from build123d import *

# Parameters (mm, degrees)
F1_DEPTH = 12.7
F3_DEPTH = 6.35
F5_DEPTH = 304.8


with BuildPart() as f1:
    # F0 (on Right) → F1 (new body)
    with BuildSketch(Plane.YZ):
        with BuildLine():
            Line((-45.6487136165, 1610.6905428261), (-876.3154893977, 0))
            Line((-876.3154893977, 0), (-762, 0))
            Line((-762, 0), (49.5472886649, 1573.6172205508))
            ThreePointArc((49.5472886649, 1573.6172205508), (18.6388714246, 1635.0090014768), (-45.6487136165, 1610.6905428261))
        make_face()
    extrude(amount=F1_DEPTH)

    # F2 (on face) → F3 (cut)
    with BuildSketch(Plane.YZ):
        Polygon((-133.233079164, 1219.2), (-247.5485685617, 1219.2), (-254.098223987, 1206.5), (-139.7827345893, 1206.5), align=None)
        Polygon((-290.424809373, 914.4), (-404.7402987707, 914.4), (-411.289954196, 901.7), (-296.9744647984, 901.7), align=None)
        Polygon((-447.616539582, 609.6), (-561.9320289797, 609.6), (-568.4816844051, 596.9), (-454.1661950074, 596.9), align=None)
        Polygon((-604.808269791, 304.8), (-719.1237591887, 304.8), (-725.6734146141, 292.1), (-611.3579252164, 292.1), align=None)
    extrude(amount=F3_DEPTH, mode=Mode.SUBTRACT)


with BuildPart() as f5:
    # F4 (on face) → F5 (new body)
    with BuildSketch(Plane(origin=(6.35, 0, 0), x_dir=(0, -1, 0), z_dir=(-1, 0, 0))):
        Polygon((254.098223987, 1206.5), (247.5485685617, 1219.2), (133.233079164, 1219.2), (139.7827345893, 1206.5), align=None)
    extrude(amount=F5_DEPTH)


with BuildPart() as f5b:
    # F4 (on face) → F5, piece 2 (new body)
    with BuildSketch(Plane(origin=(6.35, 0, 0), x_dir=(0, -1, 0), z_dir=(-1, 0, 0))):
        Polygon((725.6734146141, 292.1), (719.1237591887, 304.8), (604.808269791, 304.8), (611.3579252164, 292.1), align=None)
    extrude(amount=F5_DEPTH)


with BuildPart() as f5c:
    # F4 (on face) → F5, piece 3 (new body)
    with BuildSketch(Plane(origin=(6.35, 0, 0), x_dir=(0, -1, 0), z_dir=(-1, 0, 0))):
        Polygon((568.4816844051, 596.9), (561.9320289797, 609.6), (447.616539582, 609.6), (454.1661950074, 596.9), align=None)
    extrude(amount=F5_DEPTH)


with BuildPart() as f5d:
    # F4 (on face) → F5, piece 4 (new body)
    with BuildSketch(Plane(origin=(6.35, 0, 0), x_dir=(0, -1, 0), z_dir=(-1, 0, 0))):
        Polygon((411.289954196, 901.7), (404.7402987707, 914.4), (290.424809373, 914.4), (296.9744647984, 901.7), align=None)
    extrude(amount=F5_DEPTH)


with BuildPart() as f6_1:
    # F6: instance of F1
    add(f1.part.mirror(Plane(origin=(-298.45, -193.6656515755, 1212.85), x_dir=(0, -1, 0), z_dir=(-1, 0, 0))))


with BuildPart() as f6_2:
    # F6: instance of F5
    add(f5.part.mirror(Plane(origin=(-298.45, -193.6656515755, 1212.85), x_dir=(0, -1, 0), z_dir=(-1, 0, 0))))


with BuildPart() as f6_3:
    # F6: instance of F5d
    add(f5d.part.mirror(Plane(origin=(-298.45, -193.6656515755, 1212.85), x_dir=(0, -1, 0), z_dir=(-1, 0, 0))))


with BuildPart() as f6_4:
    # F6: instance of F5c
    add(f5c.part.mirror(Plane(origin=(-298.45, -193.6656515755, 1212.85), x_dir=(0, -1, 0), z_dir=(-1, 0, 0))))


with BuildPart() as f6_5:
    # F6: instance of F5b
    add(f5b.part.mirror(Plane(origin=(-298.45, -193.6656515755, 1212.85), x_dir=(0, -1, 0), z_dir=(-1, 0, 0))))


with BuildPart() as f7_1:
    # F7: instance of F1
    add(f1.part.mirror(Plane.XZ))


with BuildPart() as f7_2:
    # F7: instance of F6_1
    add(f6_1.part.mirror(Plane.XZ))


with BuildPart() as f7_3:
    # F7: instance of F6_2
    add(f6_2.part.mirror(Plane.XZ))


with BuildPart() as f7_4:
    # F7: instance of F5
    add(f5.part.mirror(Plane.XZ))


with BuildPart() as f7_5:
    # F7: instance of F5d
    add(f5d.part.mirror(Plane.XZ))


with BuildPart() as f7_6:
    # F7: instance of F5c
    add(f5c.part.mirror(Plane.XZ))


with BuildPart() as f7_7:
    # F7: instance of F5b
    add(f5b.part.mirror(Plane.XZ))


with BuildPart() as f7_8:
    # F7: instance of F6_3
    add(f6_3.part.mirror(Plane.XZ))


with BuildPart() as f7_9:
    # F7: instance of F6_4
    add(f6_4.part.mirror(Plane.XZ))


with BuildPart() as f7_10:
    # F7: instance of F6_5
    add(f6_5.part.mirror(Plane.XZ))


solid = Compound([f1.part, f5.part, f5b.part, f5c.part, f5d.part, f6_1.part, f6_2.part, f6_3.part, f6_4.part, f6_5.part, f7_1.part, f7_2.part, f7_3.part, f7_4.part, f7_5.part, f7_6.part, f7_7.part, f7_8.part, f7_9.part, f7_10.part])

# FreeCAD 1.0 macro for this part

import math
import FreeCAD as App
import Part
import Sketcher
from FreeCAD import Vector
Q = App.Units.Quantity

doc = App.newDocument("Part")
params = doc.addObject("Spreadsheet::Sheet", "Params")
for row, (alias, value) in enumerate([
    ("pad1_length", "0.5 in"),
    ("pocket1_length", "0.25 in"),
    ("pad2_length", "12 in"),
    ("pad3_length", "12 in"),
    ("pad4_length", "12 in"),
    ("pad5_length", "12 in"),
], start=1):
    params.set(f"A{row}", alias)
    params.set(f"B{row}", "=" + value)
    params.setAlias(f"B{row}", alias)

body = doc.addObject("PartDesign::Body", "Body")

# Sketch on YZ plane
sketch1 = doc.addObject("Sketcher::SketchObject", "Sketch")
body.addObject(sketch1)
sketch1.AttachmentSupport = (doc.YZ_Plane, [""])
sketch1.MapMode = "FlatFace"
sketch1.addGeometry([
    Part.LineSegment(Vector(-46, 1611, 0), Vector(-876, 0, 0)),
    Part.LineSegment(Vector(-876, 0, 0), Vector(-762, 0, 0)),
    Part.LineSegment(Vector(-762, 0, 0), Vector(50, 1574, 0)),
    Part.ArcOfCircle(Part.Circle(Vector(0, 1587, 0), Vector(0, 0, 1), 51), math.radians(-15), math.radians(153)),
], False)
sketch1.addConstraint([
    Sketcher.Constraint("Coincident", 0, 2, 1, 1),
    Sketcher.Constraint("Coincident", 1, 2, 2, 1),
    Sketcher.Constraint("Coincident", 2, 2, 3, 1),
    Sketcher.Constraint("Tangent", 3, 2, 0, 1),
    Sketcher.Constraint("Horizontal", 1),
    Sketcher.Constraint("PointOnObject", 3, 3, -2),
    Sketcher.Constraint("PointOnObject", 0, 2, -1),
    Sketcher.Constraint("Parallel", 0, 2),
    Sketcher.Constraint("DistanceX", 1, 2, -1, 1, Q("30 in")),
    Sketcher.Constraint("Radius", 3, 51.361762),
    Sketcher.Constraint("DistanceX", 1, 1, 1, 2, 114.315489),
    Sketcher.Constraint("Distance", 0, 1812.272418),
])
pad1 = doc.addObject("PartDesign::Pad", "Pad")
body.addObject(pad1)
pad1.Profile = sketch1
pad1.setExpression("Length", "Params.pad1_length")

# Sketch on YZ plane
sketch2 = doc.addObject("Sketcher::SketchObject", "Sketch001")
body.addObject(sketch2)
sketch2.AttachmentSupport = (doc.YZ_Plane, [""])
sketch2.MapMode = "FlatFace"
sketch2.addGeometry([
    Part.LineSegment(Vector(-133, 1219, 0), Vector(-248, 1219, 0)),  # 0
    Part.LineSegment(Vector(-248, 1219, 0), Vector(-254, 1206, 0)),  # 1
    Part.LineSegment(Vector(-254, 1206, 0), Vector(-140, 1206, 0)),  # 2
    Part.LineSegment(Vector(-140, 1206, 0), Vector(-133, 1219, 0)),  # 3
    Part.LineSegment(Vector(-290, 914, 0), Vector(-405, 914, 0)),  # 4
    Part.LineSegment(Vector(-405, 914, 0), Vector(-411, 902, 0)),  # 5
    Part.LineSegment(Vector(-411, 902, 0), Vector(-297, 902, 0)),  # 6
    Part.LineSegment(Vector(-297, 902, 0), Vector(-290, 914, 0)),  # 7
    Part.LineSegment(Vector(-448, 610, 0), Vector(-562, 610, 0)),  # 8
    Part.LineSegment(Vector(-562, 610, 0), Vector(-568, 597, 0)),  # 9
    Part.LineSegment(Vector(-568, 597, 0), Vector(-454, 597, 0)),  # 10
    Part.LineSegment(Vector(-454, 597, 0), Vector(-448, 610, 0)),  # 11
    Part.LineSegment(Vector(-605, 305, 0), Vector(-719, 305, 0)),  # 12
    Part.LineSegment(Vector(-719, 305, 0), Vector(-726, 292, 0)),  # 13
    Part.LineSegment(Vector(-726, 292, 0), Vector(-611, 292, 0)),  # 14
    Part.LineSegment(Vector(-611, 292, 0), Vector(-605, 305, 0)),  # 15
], False)
sketch2.addConstraint([
    Sketcher.Constraint("Coincident", 0, 2, 1, 1),
    Sketcher.Constraint("Coincident", 1, 2, 2, 1),
    Sketcher.Constraint("Coincident", 2, 2, 3, 1),
    Sketcher.Constraint("Coincident", 3, 2, 0, 1),
    Sketcher.Constraint("Coincident", 4, 2, 5, 1),
    Sketcher.Constraint("Coincident", 5, 2, 6, 1),
    Sketcher.Constraint("Coincident", 6, 2, 7, 1),
    Sketcher.Constraint("Coincident", 7, 2, 4, 1),
    Sketcher.Constraint("Coincident", 8, 2, 9, 1),
    Sketcher.Constraint("Coincident", 9, 2, 10, 1),
    Sketcher.Constraint("Coincident", 10, 2, 11, 1),
    Sketcher.Constraint("Coincident", 11, 2, 8, 1),
    Sketcher.Constraint("Coincident", 12, 2, 13, 1),
    Sketcher.Constraint("Coincident", 13, 2, 14, 1),
    Sketcher.Constraint("Coincident", 14, 2, 15, 1),
    Sketcher.Constraint("Coincident", 15, 2, 12, 1),
    Sketcher.Constraint("Horizontal", 0),
    Sketcher.Constraint("Horizontal", 2),
    Sketcher.Constraint("Horizontal", 4),
    Sketcher.Constraint("Horizontal", 6),
    Sketcher.Constraint("Horizontal", 8),
    Sketcher.Constraint("Horizontal", 10),
    Sketcher.Constraint("Horizontal", 12),
    Sketcher.Constraint("Horizontal", 14),
    Sketcher.Constraint("Parallel", 1, 3),
    Sketcher.Constraint("Parallel", 3, 5),
    Sketcher.Constraint("Parallel", 5, 7),
    Sketcher.Constraint("Parallel", 7, 9),
    Sketcher.Constraint("Parallel", 9, 11),
    Sketcher.Constraint("Parallel", 11, 13),
    Sketcher.Constraint("Parallel", 13, 15),
    Sketcher.Constraint("Equal", 2, 4),
    Sketcher.Constraint("Equal", 6, 8),
    Sketcher.Constraint("Equal", 10, 12),
    Sketcher.Constraint("Equal", 3, 5),
    Sketcher.Constraint("Equal", 7, 9),
    Sketcher.Constraint("Equal", 11, 13),
    Sketcher.Constraint("DistanceY", -1, 1, 0, 2, Q("48 in")),
    Sketcher.Constraint("DistanceY", -1, 1, 4, 2, Q("36 in")),
    Sketcher.Constraint("DistanceY", -1, 1, 8, 2, Q("24 in")),
    Sketcher.Constraint("DistanceY", -1, 1, 12, 2, Q("12 in")),
    Sketcher.Constraint("DistanceY", -1, 1, 1, 2, Q("47.5 in")),
    Sketcher.Constraint("DistanceX", 4, 2, 2, 2, Q("10.4314002 in")),
    Sketcher.Constraint("DistanceX", 8, 2, 6, 2, Q("10.4314002 in")),
    Sketcher.Constraint("DistanceX", 12, 2, 10, 2, Q("10.4314002 in")),
    Sketcher.Constraint("DistanceX", 0, 2, 0, 1, 114.315489),
    Sketcher.Constraint("DistanceX", 4, 2, -1, 1, 404.740299),
    Sketcher.Constraint("DistanceX", 0, 2, -1, 1, 247.548569),
])
pocket1 = doc.addObject("PartDesign::Pocket", "Pocket")
body.addObject(pocket1)
pocket1.Profile = sketch2
pocket1.setExpression("Length", "Params.pocket1_length")
pocket1.Reversed = True
body2 = doc.addObject("PartDesign::Body", "Body001")

# Sketch on YZ plane
sketch3 = doc.addObject("Sketcher::SketchObject", "Sketch002")
body2.addObject(sketch3)
sketch3.AttachmentSupport = (doc.getObject("YZ_Plane001"), [""])
sketch3.MapMode = "FlatFace"
sketch3.AttachmentOffset = App.Placement(Vector(0, 0, 0.25 * 25.4), App.Rotation())
sketch3.addGeometry([
    Part.LineSegment(Vector(-254, 1206, 0), Vector(-248, 1219, 0)),
    Part.LineSegment(Vector(-248, 1219, 0), Vector(-133, 1219, 0)),
    Part.LineSegment(Vector(-133, 1219, 0), Vector(-140, 1206, 0)),
    Part.LineSegment(Vector(-140, 1206, 0), Vector(-254, 1206, 0)),
], False)
sketch3.addConstraint([
    Sketcher.Constraint("Coincident", 0, 2, 1, 1),
    Sketcher.Constraint("Coincident", 1, 2, 2, 1),
    Sketcher.Constraint("Coincident", 2, 2, 3, 1),
    Sketcher.Constraint("Coincident", 3, 2, 0, 1),
    Sketcher.Constraint("Horizontal", 1),
    Sketcher.Constraint("Horizontal", 3),
    Sketcher.Constraint("Parallel", 0, 2),
    Sketcher.Constraint("DistanceY", -1, 1, 0, 2, Q("48 in")),
    Sketcher.Constraint("DistanceY", -1, 1, 2, 2, Q("47.5 in")),
    Sketcher.Constraint("DistanceX", 1, 1, 1, 2, 114.315489),
    Sketcher.Constraint("DistanceX", 0, 2, -1, 1, 247.548569),
    Sketcher.Constraint("Distance", 0, 14.289436),
])
pad2 = doc.addObject("PartDesign::Pad", "Pad001")
body2.addObject(pad2)
pad2.Profile = sketch3
pad2.setExpression("Length", "Params.pad2_length")
pad2.Reversed = True
body3 = doc.addObject("PartDesign::Body", "Body002")

# Sketch on YZ plane
sketch4 = doc.addObject("Sketcher::SketchObject", "Sketch003")
body3.addObject(sketch4)
sketch4.AttachmentSupport = (doc.getObject("YZ_Plane002"), [""])
sketch4.MapMode = "FlatFace"
sketch4.AttachmentOffset = App.Placement(Vector(0, 0, 0.25 * 25.4), App.Rotation())
sketch4.addGeometry([
    Part.LineSegment(Vector(-726, 292, 0), Vector(-719, 305, 0)),
    Part.LineSegment(Vector(-719, 305, 0), Vector(-605, 305, 0)),
    Part.LineSegment(Vector(-605, 305, 0), Vector(-611, 292, 0)),
    Part.LineSegment(Vector(-611, 292, 0), Vector(-726, 292, 0)),
], False)
sketch4.addConstraint([
    Sketcher.Constraint("Coincident", 0, 2, 1, 1),
    Sketcher.Constraint("Coincident", 1, 2, 2, 1),
    Sketcher.Constraint("Coincident", 2, 2, 3, 1),
    Sketcher.Constraint("Coincident", 3, 2, 0, 1),
    Sketcher.Constraint("Horizontal", 1),
    Sketcher.Constraint("Horizontal", 3),
    Sketcher.Constraint("Parallel", 0, 2),
    Sketcher.Constraint("DistanceY", -1, 1, 0, 2, Q("12 in")),
    Sketcher.Constraint("DistanceY", -1, 1, 2, 2, Q("11.5 in")),
    Sketcher.Constraint("DistanceX", 1, 1, 1, 2, 114.315489),
    Sketcher.Constraint("DistanceX", 0, 2, -1, 1, 719.123759),
    Sketcher.Constraint("Distance", 0, 14.289436),
])
pad3 = doc.addObject("PartDesign::Pad", "Pad002")
body3.addObject(pad3)
pad3.Profile = sketch4
pad3.setExpression("Length", "Params.pad3_length")
pad3.Reversed = True
body4 = doc.addObject("PartDesign::Body", "Body003")

# Sketch on YZ plane
sketch5 = doc.addObject("Sketcher::SketchObject", "Sketch004")
body4.addObject(sketch5)
sketch5.AttachmentSupport = (doc.getObject("YZ_Plane003"), [""])
sketch5.MapMode = "FlatFace"
sketch5.AttachmentOffset = App.Placement(Vector(0, 0, 0.25 * 25.4), App.Rotation())
sketch5.addGeometry([
    Part.LineSegment(Vector(-568, 597, 0), Vector(-562, 610, 0)),
    Part.LineSegment(Vector(-562, 610, 0), Vector(-448, 610, 0)),
    Part.LineSegment(Vector(-448, 610, 0), Vector(-454, 597, 0)),
    Part.LineSegment(Vector(-454, 597, 0), Vector(-568, 597, 0)),
], False)
sketch5.addConstraint([
    Sketcher.Constraint("Coincident", 0, 2, 1, 1),
    Sketcher.Constraint("Coincident", 1, 2, 2, 1),
    Sketcher.Constraint("Coincident", 2, 2, 3, 1),
    Sketcher.Constraint("Coincident", 3, 2, 0, 1),
    Sketcher.Constraint("Horizontal", 1),
    Sketcher.Constraint("Horizontal", 3),
    Sketcher.Constraint("Parallel", 0, 2),
    Sketcher.Constraint("DistanceY", -1, 1, 0, 2, Q("24 in")),
    Sketcher.Constraint("DistanceY", -1, 1, 2, 2, Q("23.5 in")),
    Sketcher.Constraint("DistanceX", 1, 1, 1, 2, 114.315489),
    Sketcher.Constraint("DistanceX", 0, 2, -1, 1, 561.932029),
    Sketcher.Constraint("Distance", 0, 14.289436),
])
pad4 = doc.addObject("PartDesign::Pad", "Pad003")
body4.addObject(pad4)
pad4.Profile = sketch5
pad4.setExpression("Length", "Params.pad4_length")
pad4.Reversed = True
body5 = doc.addObject("PartDesign::Body", "Body004")

# Sketch on YZ plane
sketch6 = doc.addObject("Sketcher::SketchObject", "Sketch005")
body5.addObject(sketch6)
sketch6.AttachmentSupport = (doc.getObject("YZ_Plane004"), [""])
sketch6.MapMode = "FlatFace"
sketch6.AttachmentOffset = App.Placement(Vector(0, 0, 0.25 * 25.4), App.Rotation())
sketch6.addGeometry([
    Part.LineSegment(Vector(-411, 902, 0), Vector(-405, 914, 0)),
    Part.LineSegment(Vector(-405, 914, 0), Vector(-290, 914, 0)),
    Part.LineSegment(Vector(-290, 914, 0), Vector(-297, 902, 0)),
    Part.LineSegment(Vector(-297, 902, 0), Vector(-411, 902, 0)),
], False)
sketch6.addConstraint([
    Sketcher.Constraint("Coincident", 0, 2, 1, 1),
    Sketcher.Constraint("Coincident", 1, 2, 2, 1),
    Sketcher.Constraint("Coincident", 2, 2, 3, 1),
    Sketcher.Constraint("Coincident", 3, 2, 0, 1),
    Sketcher.Constraint("Horizontal", 1),
    Sketcher.Constraint("Horizontal", 3),
    Sketcher.Constraint("Parallel", 0, 2),
    Sketcher.Constraint("DistanceY", -1, 1, 0, 2, Q("36 in")),
    Sketcher.Constraint("DistanceY", -1, 1, 2, 2, Q("35.5 in")),
    Sketcher.Constraint("DistanceX", 1, 1, 1, 2, 114.315489),
    Sketcher.Constraint("DistanceX", 0, 2, -1, 1, 404.740299),
    Sketcher.Constraint("Distance", 0, 14.289436),
])
pad5 = doc.addObject("PartDesign::Pad", "Pad004")
body5.addObject(pad5)
pad5.Profile = sketch6
pad5.setExpression("Length", "Params.pad5_length")
pad5.Reversed = True
body6 = doc.addObject("PartDesign::Body", "Body005")
doc.recompute()

mirroring = doc.addObject("Part::Mirroring", "Mirroring")
mirroring.Source = body
mirroring.Base = Vector(-298.45, -193.665652, 1212.85)
mirroring.Normal = Vector(-1, 0, 0)
body6.BaseFeature = mirroring
doc.recompute()
body7 = doc.addObject("PartDesign::Body", "Body006")
doc.recompute()

mirroring2 = doc.addObject("Part::Mirroring", "Mirroring001")
mirroring2.Source = body2
mirroring2.Base = Vector(-298.45, -193.665652, 1212.85)
mirroring2.Normal = Vector(-1, 0, 0)
body7.BaseFeature = mirroring2
doc.recompute()
body8 = doc.addObject("PartDesign::Body", "Body007")
doc.recompute()

mirroring3 = doc.addObject("Part::Mirroring", "Mirroring002")
mirroring3.Source = body5
mirroring3.Base = Vector(-298.45, -193.665652, 1212.85)
mirroring3.Normal = Vector(-1, 0, 0)
body8.BaseFeature = mirroring3
doc.recompute()
body9 = doc.addObject("PartDesign::Body", "Body008")
doc.recompute()

mirroring4 = doc.addObject("Part::Mirroring", "Mirroring003")
mirroring4.Source = body4
mirroring4.Base = Vector(-298.45, -193.665652, 1212.85)
mirroring4.Normal = Vector(-1, 0, 0)
body9.BaseFeature = mirroring4
doc.recompute()
body10 = doc.addObject("PartDesign::Body", "Body009")
doc.recompute()

mirroring5 = doc.addObject("Part::Mirroring", "Mirroring004")
mirroring5.Source = body3
mirroring5.Base = Vector(-298.45, -193.665652, 1212.85)
mirroring5.Normal = Vector(-1, 0, 0)
body10.BaseFeature = mirroring5
doc.recompute()
body11 = doc.addObject("PartDesign::Body", "Body010")
doc.recompute()

mirroring6 = doc.addObject("Part::Mirroring", "Mirroring005")
mirroring6.Source = body
mirroring6.Base = Vector(0, 0, 0)
mirroring6.Normal = Vector(0, -1, 0)
body11.BaseFeature = mirroring6
doc.recompute()
body12 = doc.addObject("PartDesign::Body", "Body011")
doc.recompute()

mirroring7 = doc.addObject("Part::Mirroring", "Mirroring006")
mirroring7.Source = body6
mirroring7.Base = Vector(0, 0, 0)
mirroring7.Normal = Vector(0, -1, 0)
body12.BaseFeature = mirroring7
doc.recompute()
body13 = doc.addObject("PartDesign::Body", "Body012")
doc.recompute()

mirroring8 = doc.addObject("Part::Mirroring", "Mirroring007")
mirroring8.Source = body7
mirroring8.Base = Vector(0, 0, 0)
mirroring8.Normal = Vector(0, -1, 0)
body13.BaseFeature = mirroring8
doc.recompute()
body14 = doc.addObject("PartDesign::Body", "Body013")
doc.recompute()

mirroring9 = doc.addObject("Part::Mirroring", "Mirroring008")
mirroring9.Source = body2
mirroring9.Base = Vector(0, 0, 0)
mirroring9.Normal = Vector(0, -1, 0)
body14.BaseFeature = mirroring9
doc.recompute()
body15 = doc.addObject("PartDesign::Body", "Body014")
doc.recompute()

mirroring10 = doc.addObject("Part::Mirroring", "Mirroring009")
mirroring10.Source = body5
mirroring10.Base = Vector(0, 0, 0)
mirroring10.Normal = Vector(0, -1, 0)
body15.BaseFeature = mirroring10
doc.recompute()
body16 = doc.addObject("PartDesign::Body", "Body015")
doc.recompute()

mirroring11 = doc.addObject("Part::Mirroring", "Mirroring010")
mirroring11.Source = body4
mirroring11.Base = Vector(0, 0, 0)
mirroring11.Normal = Vector(0, -1, 0)
body16.BaseFeature = mirroring11
doc.recompute()
body17 = doc.addObject("PartDesign::Body", "Body016")
doc.recompute()

mirroring12 = doc.addObject("Part::Mirroring", "Mirroring011")
mirroring12.Source = body3
mirroring12.Base = Vector(0, 0, 0)
mirroring12.Normal = Vector(0, -1, 0)
body17.BaseFeature = mirroring12
doc.recompute()
body18 = doc.addObject("PartDesign::Body", "Body017")
doc.recompute()

mirroring13 = doc.addObject("Part::Mirroring", "Mirroring012")
mirroring13.Source = body8
mirroring13.Base = Vector(0, 0, 0)
mirroring13.Normal = Vector(0, -1, 0)
body18.BaseFeature = mirroring13
doc.recompute()
body19 = doc.addObject("PartDesign::Body", "Body018")
doc.recompute()

mirroring14 = doc.addObject("Part::Mirroring", "Mirroring013")
mirroring14.Source = body9
mirroring14.Base = Vector(0, 0, 0)
mirroring14.Normal = Vector(0, -1, 0)
body19.BaseFeature = mirroring14
doc.recompute()
body20 = doc.addObject("PartDesign::Body", "Body019")
doc.recompute()

mirroring15 = doc.addObject("Part::Mirroring", "Mirroring014")
mirroring15.Source = body10
mirroring15.Base = Vector(0, 0, 0)
mirroring15.Normal = Vector(0, -1, 0)
body20.BaseFeature = mirroring15
doc.recompute()

doc.recompute()
